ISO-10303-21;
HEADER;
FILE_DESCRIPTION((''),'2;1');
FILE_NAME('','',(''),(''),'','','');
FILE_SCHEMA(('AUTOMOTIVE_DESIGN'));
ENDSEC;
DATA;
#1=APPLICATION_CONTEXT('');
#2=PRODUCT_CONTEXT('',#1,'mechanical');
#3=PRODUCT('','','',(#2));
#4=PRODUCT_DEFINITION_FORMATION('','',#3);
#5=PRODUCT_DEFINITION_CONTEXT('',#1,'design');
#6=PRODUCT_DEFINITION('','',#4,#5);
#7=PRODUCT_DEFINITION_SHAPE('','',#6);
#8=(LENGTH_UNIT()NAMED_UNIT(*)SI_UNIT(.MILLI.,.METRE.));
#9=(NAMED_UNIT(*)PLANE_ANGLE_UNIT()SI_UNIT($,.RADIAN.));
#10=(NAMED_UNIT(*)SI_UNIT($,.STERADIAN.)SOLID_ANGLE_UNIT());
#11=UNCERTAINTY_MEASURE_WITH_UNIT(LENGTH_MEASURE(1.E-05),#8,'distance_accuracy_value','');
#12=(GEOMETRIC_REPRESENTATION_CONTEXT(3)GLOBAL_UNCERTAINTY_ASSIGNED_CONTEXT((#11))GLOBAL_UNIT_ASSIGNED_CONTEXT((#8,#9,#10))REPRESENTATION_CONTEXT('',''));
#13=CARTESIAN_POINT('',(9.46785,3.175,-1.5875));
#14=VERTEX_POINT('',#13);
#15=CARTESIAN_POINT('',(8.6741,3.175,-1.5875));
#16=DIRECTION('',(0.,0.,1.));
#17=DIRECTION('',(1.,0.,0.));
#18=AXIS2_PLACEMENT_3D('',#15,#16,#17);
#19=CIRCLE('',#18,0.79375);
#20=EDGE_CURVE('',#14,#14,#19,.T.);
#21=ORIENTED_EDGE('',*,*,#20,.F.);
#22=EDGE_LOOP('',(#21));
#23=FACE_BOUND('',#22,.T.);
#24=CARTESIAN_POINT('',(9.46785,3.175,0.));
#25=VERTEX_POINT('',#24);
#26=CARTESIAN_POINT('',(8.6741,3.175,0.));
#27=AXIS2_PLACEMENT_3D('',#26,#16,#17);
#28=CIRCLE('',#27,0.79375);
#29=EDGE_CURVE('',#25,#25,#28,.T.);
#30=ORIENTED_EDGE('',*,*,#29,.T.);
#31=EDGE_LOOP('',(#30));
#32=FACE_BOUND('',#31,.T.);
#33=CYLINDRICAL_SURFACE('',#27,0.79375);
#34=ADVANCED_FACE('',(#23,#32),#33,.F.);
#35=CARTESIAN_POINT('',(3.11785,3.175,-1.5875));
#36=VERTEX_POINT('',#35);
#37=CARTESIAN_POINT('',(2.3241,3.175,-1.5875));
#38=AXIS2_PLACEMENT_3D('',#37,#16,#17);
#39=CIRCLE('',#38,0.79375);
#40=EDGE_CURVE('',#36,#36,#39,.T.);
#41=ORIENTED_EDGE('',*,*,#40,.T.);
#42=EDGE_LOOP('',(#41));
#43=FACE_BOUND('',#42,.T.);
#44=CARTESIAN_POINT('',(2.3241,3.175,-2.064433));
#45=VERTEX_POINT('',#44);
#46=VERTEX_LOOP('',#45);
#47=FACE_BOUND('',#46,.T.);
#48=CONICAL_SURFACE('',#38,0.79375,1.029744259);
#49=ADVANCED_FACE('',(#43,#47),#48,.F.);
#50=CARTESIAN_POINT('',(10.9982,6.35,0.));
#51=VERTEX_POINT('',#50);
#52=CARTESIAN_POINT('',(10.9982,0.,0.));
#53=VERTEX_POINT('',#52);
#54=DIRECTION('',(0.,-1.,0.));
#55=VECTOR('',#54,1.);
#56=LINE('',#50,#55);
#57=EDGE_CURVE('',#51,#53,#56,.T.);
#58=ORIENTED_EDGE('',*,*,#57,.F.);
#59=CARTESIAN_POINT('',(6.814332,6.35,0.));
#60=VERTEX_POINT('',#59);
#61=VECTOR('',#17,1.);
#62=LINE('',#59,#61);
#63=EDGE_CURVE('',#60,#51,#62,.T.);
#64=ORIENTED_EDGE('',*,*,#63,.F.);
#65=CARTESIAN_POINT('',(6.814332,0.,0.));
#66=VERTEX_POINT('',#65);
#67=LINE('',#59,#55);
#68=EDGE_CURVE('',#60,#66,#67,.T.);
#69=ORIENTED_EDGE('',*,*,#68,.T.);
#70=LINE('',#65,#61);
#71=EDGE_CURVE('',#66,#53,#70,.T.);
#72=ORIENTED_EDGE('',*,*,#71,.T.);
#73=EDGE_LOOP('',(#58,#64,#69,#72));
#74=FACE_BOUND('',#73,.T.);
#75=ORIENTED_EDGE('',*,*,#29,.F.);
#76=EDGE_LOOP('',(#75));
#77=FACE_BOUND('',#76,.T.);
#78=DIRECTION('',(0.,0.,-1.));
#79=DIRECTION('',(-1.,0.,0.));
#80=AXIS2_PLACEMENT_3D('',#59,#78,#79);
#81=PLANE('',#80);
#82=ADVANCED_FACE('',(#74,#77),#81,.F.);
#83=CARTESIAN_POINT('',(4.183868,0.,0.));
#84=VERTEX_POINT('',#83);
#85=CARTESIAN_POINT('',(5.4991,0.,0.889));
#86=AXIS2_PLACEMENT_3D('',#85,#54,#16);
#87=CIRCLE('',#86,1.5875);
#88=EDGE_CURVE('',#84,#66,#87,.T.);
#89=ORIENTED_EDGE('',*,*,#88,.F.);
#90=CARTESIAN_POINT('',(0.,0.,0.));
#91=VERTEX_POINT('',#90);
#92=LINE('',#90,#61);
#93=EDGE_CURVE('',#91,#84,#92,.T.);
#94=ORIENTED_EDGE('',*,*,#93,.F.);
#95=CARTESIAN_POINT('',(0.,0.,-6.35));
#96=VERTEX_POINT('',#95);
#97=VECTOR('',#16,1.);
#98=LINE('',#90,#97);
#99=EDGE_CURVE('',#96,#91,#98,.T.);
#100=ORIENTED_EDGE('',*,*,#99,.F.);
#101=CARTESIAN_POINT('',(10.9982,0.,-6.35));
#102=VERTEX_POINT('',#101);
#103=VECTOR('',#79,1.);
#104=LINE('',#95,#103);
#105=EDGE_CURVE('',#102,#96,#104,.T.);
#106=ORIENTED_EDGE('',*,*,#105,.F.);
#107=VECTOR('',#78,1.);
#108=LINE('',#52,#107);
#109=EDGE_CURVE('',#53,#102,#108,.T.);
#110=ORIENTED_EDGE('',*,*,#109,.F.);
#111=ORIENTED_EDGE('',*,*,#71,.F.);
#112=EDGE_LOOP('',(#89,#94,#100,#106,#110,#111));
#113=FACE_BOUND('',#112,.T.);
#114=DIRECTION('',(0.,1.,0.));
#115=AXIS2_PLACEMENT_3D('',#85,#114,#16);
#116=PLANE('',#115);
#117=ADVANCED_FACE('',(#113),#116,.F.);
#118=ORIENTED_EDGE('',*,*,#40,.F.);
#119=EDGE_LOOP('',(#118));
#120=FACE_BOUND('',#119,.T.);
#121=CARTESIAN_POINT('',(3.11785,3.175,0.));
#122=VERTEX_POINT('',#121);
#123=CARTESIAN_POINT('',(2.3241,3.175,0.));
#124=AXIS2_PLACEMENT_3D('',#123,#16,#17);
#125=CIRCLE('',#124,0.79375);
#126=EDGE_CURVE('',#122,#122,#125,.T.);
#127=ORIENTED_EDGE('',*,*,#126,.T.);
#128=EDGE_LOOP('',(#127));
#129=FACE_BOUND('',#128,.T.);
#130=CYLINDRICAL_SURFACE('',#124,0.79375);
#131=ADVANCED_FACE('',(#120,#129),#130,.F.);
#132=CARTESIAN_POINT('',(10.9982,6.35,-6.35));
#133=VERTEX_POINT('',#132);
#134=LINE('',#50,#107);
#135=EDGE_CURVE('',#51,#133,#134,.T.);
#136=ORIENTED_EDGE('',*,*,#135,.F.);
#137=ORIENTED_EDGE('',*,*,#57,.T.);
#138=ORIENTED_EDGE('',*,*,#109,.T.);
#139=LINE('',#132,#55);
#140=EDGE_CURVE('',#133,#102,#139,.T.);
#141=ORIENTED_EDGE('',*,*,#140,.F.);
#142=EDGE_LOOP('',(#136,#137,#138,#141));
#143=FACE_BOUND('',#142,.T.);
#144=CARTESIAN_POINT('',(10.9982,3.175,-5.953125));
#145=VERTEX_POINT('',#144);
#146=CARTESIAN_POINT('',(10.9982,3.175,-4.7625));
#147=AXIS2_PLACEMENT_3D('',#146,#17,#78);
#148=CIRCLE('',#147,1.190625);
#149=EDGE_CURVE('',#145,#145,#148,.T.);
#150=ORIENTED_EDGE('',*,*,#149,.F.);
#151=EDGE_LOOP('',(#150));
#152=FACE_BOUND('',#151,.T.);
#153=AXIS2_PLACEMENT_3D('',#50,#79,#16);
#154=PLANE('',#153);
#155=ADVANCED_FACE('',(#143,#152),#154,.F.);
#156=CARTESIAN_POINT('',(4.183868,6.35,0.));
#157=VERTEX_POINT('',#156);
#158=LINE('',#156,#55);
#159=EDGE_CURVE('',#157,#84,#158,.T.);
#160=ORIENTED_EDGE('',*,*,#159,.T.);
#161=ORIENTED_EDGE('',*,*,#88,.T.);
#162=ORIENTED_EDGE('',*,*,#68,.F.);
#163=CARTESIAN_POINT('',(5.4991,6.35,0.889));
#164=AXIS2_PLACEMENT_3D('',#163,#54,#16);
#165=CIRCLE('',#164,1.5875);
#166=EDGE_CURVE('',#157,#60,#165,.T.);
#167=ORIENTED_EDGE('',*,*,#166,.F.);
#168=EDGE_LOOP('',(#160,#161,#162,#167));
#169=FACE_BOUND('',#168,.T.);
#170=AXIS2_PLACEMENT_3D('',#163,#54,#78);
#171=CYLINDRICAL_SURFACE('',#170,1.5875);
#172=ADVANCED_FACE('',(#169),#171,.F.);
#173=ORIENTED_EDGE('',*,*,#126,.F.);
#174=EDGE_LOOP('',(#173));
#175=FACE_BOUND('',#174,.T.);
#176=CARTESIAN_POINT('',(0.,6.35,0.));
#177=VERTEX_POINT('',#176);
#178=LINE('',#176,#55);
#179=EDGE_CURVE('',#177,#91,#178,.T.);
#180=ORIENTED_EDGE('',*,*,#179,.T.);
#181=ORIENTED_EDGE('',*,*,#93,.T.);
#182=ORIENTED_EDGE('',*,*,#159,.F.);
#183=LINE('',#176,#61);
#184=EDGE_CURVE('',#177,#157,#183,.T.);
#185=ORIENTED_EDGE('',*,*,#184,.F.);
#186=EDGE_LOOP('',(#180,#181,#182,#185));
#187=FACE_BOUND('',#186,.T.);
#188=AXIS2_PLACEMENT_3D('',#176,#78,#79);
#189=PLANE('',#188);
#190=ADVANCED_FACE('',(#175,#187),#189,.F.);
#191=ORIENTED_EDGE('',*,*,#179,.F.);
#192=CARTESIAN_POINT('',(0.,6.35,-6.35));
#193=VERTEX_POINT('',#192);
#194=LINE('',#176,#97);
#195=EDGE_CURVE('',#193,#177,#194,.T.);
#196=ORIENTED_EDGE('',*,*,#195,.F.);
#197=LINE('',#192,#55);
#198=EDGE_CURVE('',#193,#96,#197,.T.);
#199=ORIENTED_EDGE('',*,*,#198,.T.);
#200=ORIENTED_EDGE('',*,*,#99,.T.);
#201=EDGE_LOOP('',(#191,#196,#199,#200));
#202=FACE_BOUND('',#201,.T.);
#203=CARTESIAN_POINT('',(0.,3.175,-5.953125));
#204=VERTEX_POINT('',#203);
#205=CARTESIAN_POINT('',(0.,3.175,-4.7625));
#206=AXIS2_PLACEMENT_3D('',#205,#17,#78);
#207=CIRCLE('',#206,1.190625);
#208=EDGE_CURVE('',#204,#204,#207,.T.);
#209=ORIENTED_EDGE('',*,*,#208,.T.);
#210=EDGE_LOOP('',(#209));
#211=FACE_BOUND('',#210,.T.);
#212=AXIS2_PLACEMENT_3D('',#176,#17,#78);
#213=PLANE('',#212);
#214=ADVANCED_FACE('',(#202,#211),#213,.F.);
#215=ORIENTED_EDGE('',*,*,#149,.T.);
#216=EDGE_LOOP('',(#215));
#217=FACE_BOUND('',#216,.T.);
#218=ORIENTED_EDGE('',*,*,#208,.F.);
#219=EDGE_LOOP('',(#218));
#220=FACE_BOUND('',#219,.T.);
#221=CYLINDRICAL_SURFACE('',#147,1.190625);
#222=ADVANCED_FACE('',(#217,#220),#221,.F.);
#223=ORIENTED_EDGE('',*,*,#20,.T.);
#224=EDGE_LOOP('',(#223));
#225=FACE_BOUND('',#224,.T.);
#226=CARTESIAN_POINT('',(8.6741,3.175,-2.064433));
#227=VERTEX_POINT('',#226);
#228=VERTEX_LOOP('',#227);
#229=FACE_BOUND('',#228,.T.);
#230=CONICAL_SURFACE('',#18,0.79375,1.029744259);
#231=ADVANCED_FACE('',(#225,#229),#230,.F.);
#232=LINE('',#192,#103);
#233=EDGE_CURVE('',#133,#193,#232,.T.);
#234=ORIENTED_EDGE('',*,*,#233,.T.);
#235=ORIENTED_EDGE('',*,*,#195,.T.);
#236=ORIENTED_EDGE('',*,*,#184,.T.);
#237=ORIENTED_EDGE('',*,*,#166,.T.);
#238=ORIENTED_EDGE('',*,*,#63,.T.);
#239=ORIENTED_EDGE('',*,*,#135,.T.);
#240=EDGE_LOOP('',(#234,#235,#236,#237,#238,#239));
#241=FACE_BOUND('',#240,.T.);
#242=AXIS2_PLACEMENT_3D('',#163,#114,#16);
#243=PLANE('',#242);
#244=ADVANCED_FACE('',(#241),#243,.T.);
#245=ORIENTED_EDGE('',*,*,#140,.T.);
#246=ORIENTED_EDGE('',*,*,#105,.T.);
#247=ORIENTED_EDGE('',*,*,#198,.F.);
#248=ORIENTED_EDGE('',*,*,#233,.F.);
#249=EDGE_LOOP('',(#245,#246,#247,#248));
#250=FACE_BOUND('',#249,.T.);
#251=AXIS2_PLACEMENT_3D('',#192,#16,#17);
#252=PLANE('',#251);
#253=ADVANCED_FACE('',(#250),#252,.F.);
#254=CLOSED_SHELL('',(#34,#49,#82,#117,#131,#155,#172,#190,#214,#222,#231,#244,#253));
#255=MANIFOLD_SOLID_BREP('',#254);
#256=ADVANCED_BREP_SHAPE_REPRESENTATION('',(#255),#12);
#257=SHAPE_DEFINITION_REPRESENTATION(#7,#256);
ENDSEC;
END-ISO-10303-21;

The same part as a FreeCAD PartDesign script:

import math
import FreeCAD as App
import Part
import Sketcher
from FreeCAD import Vector
Q = App.Units.Quantity

doc = App.newDocument("Part")
body = doc.addObject("PartDesign::Body", "Body")

# Sketch on XZ plane
sketch1 = body.newObject("Sketcher::SketchObject", "Sketch")
sketch1.AttachmentSupport = (doc.getObject("XZ_Plane"), [""])
sketch1.MapMode = "FlatFace"
sketch1.addGeometry([
    Part.LineSegment(Vector(6.8, 0, 0), Vector(11, 0, 0)),  # 0
    Part.LineSegment(Vector(11, 0, 0), Vector(11, -6.3, 0)),  # 1
    Part.LineSegment(Vector(11, -6.3, 0), Vector(0, -6.3, 0)),  # 2
    Part.LineSegment(Vector(0, -6.3, 0), Vector(0, 0, 0)),  # 3
    Part.LineSegment(Vector(0, 0, 0), Vector(4.2, 0, 0)),  # 4
    Part.ArcOfCircle(Part.Circle(Vector(5.5, 0.9, 0), Vector(0, 0, 1), 1.6), math.radians(-146), math.radians(-34)),  # 5
], False)
sketch1.addConstraint([
    Sketcher.Constraint("Coincident", 0, 2, 1, 1),
    Sketcher.Constraint("Coincident", 1, 2, 2, 1),
    Sketcher.Constraint("Coincident", 2, 2, 3, 1),
    Sketcher.Constraint("Coincident", 3, 2, 4, 1),
    Sketcher.Constraint("Coincident", 4, 2, 5, 1),
    Sketcher.Constraint("Coincident", 5, 2, 0, 1),
    Sketcher.Constraint("Horizontal", 0),
    Sketcher.Constraint("Vertical", 1),
    Sketcher.Constraint("Horizontal", 2),
    Sketcher.Constraint("Vertical", 3),
    Sketcher.Constraint("Horizontal", 4),
    Sketcher.Constraint("Coincident", 3, 2, -1, 1),
    Sketcher.Constraint("PointOnObject", 0, 2, -1),
    Sketcher.Constraint("Equal", 0, 4),
    Sketcher.Constraint("Radius", 5, Q("0.0625 in")),
    Sketcher.Constraint("DistanceY", 1, 2, 1, 1, Q("0.25 in")),
    Sketcher.Constraint("DistanceX", 2, 2, 2, 1, Q("0.433 in")),
    Sketcher.Constraint("DistanceY", -1, 1, 5, 3, Q("0.035 in")),
])
pad1 = body.newObject("PartDesign::Pad", "Pad")
pad1.Profile = sketch1
pad1.Length = Q("0.25 in")
pad1.Reversed = True

# Sketch on XY plane
sketch2 = body.newObject("Sketcher::SketchObject", "Sketch001")
sketch2.AttachmentSupport = (doc.getObject("XY_Plane"), [""])
sketch2.MapMode = "FlatFace"
sketch2.addGeometry([
    Part.Circle(Vector(2.3, 3.2, 0), Vector(0, 0, 1), 0.8),
    Part.Circle(Vector(8.7, 3.2, 0), Vector(0, 0, 1), 0.8),
], False)
sketch2.addConstraint([
    Sketcher.Constraint("Equal", 0, 1),
    Sketcher.Constraint("Horizontal", 0, 3, 1, 3),
    Sketcher.Constraint("Diameter", 0, Q("0.0625 in")),
    Sketcher.Constraint("DistanceX", 0, 3, 1, 3, Q("0.25 in")),
    Sketcher.Constraint("DistanceY", -1, 1, 0, 3, Q("0.125 in")),
    Sketcher.Constraint("DistanceX", -1, 1, 0, 3, Q("0.0915 in")),
])
doc.recompute()
hole = body.newObject("PartDesign::Hole", "Hole")
hole.Profile = sketch2
hole.ThreadType = "None"
hole.Diameter = Q("0.0625 in")
hole.DepthType = "Dimension"
hole.Depth = Q("0.0625 in")
hole.DrillPoint = "Angled"
hole.DrillPointAngle = 118

# Sketch on YZ plane
sketch3 = body.newObject("Sketcher::SketchObject", "Sketch002")
sketch3.AttachmentSupport = (doc.getObject("YZ_Plane"), [""])
sketch3.MapMode = "FlatFace"
sketch3.AttachmentOffset = App.Placement(Vector(0, 0, 0.433 * 25.4), App.Rotation())
sketch3.addGeometry(Part.Circle(Vector(3.2, -4.8, 0), Vector(0, 0, 1), 1.2), False)
sketch3.addConstraint([
    Sketcher.Constraint("Diameter", 0, Q("0.09375 in")),
    Sketcher.Constraint("DistanceX", -1, 1, 0, 3, Q("0.125 in")),
    Sketcher.Constraint("DistanceY", 0, 3, -1, 1, Q("0.1875 in")),
])
doc.recompute()
hole2 = body.newObject("PartDesign::Hole", "Hole001")
hole2.Profile = sketch3
hole2.ThreadType = "None"
hole2.Diameter = Q("0.09375 in")
hole2.DepthType = "ThroughAll"

doc.recompute()
